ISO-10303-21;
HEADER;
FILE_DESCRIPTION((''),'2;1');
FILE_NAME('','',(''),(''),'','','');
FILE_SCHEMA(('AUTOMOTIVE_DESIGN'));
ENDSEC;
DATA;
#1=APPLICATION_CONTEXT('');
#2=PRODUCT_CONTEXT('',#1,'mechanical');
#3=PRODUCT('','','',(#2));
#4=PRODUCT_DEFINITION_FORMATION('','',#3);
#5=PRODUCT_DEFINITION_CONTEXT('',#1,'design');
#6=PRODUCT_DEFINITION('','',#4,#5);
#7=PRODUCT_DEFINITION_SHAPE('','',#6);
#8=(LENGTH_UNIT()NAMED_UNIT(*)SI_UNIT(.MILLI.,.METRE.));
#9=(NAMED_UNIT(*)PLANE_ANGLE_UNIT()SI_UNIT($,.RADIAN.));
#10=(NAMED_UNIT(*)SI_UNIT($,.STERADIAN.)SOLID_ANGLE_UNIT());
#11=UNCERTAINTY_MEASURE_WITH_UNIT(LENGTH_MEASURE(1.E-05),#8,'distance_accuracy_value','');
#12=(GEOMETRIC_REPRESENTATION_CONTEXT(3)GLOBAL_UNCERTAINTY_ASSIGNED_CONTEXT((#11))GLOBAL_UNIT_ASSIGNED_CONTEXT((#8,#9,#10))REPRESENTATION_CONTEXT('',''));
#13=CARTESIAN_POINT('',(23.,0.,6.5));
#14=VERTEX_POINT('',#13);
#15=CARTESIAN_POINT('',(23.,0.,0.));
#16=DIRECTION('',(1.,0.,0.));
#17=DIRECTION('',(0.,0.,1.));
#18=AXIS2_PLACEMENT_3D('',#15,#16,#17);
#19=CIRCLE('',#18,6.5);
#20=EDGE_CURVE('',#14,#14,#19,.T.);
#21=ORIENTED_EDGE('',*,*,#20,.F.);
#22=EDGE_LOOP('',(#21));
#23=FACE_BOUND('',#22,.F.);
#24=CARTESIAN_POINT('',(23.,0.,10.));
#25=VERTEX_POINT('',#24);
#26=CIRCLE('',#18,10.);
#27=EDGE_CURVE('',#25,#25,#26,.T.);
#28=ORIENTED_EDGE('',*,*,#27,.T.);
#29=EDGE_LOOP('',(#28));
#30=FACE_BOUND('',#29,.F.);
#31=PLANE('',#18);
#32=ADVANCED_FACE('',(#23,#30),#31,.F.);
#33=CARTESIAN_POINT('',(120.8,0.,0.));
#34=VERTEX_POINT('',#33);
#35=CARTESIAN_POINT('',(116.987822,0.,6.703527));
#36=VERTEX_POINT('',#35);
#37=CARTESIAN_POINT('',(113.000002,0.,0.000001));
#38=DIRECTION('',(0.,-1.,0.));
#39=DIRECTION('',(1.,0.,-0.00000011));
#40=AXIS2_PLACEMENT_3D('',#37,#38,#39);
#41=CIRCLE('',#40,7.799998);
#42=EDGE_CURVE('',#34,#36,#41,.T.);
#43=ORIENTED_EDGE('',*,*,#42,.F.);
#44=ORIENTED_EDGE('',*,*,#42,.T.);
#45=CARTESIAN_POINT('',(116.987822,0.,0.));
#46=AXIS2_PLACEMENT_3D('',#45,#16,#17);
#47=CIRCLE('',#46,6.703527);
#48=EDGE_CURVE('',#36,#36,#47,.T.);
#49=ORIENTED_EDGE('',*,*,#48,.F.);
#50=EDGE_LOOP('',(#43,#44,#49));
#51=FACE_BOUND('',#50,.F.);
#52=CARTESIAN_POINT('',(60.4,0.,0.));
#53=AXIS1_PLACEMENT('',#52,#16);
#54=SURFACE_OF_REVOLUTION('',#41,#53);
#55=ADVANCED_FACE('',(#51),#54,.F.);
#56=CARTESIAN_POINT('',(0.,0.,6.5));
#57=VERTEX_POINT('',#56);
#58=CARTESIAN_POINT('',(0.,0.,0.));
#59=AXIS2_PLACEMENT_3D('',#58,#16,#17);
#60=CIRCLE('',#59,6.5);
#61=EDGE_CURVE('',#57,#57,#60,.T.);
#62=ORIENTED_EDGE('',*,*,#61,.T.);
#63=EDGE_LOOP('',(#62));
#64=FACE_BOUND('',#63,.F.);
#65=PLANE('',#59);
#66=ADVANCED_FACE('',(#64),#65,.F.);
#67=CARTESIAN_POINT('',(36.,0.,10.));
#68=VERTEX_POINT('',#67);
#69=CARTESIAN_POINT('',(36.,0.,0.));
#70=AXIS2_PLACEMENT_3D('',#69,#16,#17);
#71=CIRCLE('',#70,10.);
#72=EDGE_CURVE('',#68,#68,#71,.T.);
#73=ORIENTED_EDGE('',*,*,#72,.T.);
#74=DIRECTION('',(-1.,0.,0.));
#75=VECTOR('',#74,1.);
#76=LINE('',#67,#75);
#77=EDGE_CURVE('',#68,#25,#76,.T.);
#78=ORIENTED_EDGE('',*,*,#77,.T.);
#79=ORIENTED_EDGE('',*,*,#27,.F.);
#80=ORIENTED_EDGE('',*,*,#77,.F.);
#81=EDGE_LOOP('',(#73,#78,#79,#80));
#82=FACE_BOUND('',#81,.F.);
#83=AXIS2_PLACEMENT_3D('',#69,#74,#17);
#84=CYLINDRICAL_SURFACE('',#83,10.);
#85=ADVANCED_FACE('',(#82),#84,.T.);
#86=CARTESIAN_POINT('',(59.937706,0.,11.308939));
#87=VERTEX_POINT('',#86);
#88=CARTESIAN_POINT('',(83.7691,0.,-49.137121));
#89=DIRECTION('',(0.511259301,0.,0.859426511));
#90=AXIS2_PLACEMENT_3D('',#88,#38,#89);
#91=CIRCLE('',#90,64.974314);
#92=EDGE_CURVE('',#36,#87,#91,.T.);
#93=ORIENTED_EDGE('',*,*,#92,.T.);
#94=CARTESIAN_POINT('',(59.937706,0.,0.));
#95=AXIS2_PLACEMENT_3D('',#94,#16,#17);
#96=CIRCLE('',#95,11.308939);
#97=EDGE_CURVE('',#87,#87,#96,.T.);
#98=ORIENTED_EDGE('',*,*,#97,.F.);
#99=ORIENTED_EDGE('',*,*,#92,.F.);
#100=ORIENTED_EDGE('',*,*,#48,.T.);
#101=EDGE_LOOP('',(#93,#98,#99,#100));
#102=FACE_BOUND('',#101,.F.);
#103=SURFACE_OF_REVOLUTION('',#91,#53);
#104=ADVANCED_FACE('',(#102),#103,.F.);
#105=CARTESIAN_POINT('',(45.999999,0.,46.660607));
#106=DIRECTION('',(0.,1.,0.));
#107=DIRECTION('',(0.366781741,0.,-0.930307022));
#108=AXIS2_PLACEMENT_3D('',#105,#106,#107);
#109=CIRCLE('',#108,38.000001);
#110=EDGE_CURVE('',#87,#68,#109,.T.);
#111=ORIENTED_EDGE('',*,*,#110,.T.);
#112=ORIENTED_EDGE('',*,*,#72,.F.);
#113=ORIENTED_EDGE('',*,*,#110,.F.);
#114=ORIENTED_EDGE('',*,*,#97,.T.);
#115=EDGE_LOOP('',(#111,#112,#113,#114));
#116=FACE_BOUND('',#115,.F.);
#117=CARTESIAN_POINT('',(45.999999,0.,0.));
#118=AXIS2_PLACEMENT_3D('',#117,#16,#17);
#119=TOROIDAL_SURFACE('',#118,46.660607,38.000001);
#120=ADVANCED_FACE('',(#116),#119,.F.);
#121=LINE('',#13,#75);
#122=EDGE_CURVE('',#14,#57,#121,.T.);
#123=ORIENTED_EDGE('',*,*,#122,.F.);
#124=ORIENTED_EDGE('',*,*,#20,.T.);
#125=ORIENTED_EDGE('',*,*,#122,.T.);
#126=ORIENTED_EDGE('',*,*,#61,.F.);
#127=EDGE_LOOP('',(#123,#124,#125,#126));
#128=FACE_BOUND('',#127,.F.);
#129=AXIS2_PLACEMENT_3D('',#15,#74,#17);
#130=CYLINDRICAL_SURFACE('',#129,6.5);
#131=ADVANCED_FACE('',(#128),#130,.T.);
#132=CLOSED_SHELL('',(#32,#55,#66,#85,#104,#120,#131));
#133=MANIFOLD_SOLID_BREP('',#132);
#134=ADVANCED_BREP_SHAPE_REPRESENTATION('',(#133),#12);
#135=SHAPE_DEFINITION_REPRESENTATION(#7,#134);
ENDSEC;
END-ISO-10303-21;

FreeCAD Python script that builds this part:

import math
import FreeCAD as App
import Part
import Sketcher
Q = App.Units.Quantity

doc = App.newDocument("Part")
body = doc.addObject("PartDesign::Body", "Body")

sketch1 = body.newObject("Sketcher::SketchObject", "Sketch")
sketch1.AttachmentSupport = (doc.getObject("XZ_Plane"), [""])
sketch1.MapMode = "FlatFace"
sketch1.addGeometry([
    Part.LineSegment(App.Vector(0, 6.5, 0), App.Vector(0, 0, 0)),
    Part.LineSegment(App.Vector(0, 0, 0), App.Vector(120.8, 0, 0)),
    Part.ArcOfCircle(Part.Circle(App.Vector(113, 0, 0), App.Vector(0, 0, 1), 7.8), math.radians(0), math.radians(59)),
    Part.ArcOfCircle(Part.Circle(App.Vector(83.8, -49.1, 0), App.Vector(0, 0, 1), 65), math.radians(59), math.radians(112)),
    Part.ArcOfCircle(Part.Circle(App.Vector(46, 46.7, 0), App.Vector(0, 0, 1), 38), math.radians(-105), math.radians(-68)),
    Part.LineSegment(App.Vector(36, 10, 0), App.Vector(23, 10, 0)),
    Part.LineSegment(App.Vector(23, 10, 0), App.Vector(23, 6.5, 0)),
    Part.LineSegment(App.Vector(23, 6.5, 0), App.Vector(0, 6.5, 0)),
], False)
sketch1.addConstraint([
    Sketcher.Constraint("Coincident", 0, 2, 1, 1),
    Sketcher.Constraint("Coincident", 1, 2, 2, 1),
    Sketcher.Constraint("Tangent", 2, 2, 3, 1),
    Sketcher.Constraint("Tangent", 3, 2, 4, 2),
    Sketcher.Constraint("Coincident", 4, 1, 5, 1),
    Sketcher.Constraint("Coincident", 5, 2, 6, 1),
    Sketcher.Constraint("Coincident", 6, 2, 7, 1),
    Sketcher.Constraint("Coincident", 7, 2, 0, 1),
    Sketcher.Constraint("Vertical", 0),
    Sketcher.Constraint("Horizontal", 1),
    Sketcher.Constraint("Horizontal", 5),
    Sketcher.Constraint("Vertical", 6),
    Sketcher.Constraint("Horizontal", 7),
    Sketcher.Constraint("Coincident", 0, 2, -1, 1),
    Sketcher.Constraint("PointOnObject", 2, 3, -1),
    Sketcher.Constraint("Radius", 4, Q("38.000001 mm")),
    Sketcher.Constraint("Radius", 2, Q("7.799998 mm")),
    Sketcher.Constraint("DistanceX", 5, 2, 5, 1, Q("13 mm")),
    Sketcher.Constraint("DistanceX", 7, 2, 7, 1, Q("23 mm")),
    Sketcher.Constraint("DistanceX", 1, 1, 1, 2, Q("120.8 mm")),
    Sketcher.Constraint("DistanceY", 0, 2, 0, 1, Q("6.5 mm")),
    Sketcher.Constraint("DistanceY", 6, 2, 6, 1, Q("3.5 mm")),
    Sketcher.Constraint("DistanceX", -1, 1, 4, 3, Q("45.999999 mm")),
    Sketcher.Constraint("Radius", 3, Q("64.974314 mm")),
])
revolution = body.newObject("PartDesign::Revolution", "Revolution")
revolution.Profile = sketch1
revolution.ReferenceAxis = (sketch1, ["H_Axis"])
revolution.Angle = 360

doc.recompute()
